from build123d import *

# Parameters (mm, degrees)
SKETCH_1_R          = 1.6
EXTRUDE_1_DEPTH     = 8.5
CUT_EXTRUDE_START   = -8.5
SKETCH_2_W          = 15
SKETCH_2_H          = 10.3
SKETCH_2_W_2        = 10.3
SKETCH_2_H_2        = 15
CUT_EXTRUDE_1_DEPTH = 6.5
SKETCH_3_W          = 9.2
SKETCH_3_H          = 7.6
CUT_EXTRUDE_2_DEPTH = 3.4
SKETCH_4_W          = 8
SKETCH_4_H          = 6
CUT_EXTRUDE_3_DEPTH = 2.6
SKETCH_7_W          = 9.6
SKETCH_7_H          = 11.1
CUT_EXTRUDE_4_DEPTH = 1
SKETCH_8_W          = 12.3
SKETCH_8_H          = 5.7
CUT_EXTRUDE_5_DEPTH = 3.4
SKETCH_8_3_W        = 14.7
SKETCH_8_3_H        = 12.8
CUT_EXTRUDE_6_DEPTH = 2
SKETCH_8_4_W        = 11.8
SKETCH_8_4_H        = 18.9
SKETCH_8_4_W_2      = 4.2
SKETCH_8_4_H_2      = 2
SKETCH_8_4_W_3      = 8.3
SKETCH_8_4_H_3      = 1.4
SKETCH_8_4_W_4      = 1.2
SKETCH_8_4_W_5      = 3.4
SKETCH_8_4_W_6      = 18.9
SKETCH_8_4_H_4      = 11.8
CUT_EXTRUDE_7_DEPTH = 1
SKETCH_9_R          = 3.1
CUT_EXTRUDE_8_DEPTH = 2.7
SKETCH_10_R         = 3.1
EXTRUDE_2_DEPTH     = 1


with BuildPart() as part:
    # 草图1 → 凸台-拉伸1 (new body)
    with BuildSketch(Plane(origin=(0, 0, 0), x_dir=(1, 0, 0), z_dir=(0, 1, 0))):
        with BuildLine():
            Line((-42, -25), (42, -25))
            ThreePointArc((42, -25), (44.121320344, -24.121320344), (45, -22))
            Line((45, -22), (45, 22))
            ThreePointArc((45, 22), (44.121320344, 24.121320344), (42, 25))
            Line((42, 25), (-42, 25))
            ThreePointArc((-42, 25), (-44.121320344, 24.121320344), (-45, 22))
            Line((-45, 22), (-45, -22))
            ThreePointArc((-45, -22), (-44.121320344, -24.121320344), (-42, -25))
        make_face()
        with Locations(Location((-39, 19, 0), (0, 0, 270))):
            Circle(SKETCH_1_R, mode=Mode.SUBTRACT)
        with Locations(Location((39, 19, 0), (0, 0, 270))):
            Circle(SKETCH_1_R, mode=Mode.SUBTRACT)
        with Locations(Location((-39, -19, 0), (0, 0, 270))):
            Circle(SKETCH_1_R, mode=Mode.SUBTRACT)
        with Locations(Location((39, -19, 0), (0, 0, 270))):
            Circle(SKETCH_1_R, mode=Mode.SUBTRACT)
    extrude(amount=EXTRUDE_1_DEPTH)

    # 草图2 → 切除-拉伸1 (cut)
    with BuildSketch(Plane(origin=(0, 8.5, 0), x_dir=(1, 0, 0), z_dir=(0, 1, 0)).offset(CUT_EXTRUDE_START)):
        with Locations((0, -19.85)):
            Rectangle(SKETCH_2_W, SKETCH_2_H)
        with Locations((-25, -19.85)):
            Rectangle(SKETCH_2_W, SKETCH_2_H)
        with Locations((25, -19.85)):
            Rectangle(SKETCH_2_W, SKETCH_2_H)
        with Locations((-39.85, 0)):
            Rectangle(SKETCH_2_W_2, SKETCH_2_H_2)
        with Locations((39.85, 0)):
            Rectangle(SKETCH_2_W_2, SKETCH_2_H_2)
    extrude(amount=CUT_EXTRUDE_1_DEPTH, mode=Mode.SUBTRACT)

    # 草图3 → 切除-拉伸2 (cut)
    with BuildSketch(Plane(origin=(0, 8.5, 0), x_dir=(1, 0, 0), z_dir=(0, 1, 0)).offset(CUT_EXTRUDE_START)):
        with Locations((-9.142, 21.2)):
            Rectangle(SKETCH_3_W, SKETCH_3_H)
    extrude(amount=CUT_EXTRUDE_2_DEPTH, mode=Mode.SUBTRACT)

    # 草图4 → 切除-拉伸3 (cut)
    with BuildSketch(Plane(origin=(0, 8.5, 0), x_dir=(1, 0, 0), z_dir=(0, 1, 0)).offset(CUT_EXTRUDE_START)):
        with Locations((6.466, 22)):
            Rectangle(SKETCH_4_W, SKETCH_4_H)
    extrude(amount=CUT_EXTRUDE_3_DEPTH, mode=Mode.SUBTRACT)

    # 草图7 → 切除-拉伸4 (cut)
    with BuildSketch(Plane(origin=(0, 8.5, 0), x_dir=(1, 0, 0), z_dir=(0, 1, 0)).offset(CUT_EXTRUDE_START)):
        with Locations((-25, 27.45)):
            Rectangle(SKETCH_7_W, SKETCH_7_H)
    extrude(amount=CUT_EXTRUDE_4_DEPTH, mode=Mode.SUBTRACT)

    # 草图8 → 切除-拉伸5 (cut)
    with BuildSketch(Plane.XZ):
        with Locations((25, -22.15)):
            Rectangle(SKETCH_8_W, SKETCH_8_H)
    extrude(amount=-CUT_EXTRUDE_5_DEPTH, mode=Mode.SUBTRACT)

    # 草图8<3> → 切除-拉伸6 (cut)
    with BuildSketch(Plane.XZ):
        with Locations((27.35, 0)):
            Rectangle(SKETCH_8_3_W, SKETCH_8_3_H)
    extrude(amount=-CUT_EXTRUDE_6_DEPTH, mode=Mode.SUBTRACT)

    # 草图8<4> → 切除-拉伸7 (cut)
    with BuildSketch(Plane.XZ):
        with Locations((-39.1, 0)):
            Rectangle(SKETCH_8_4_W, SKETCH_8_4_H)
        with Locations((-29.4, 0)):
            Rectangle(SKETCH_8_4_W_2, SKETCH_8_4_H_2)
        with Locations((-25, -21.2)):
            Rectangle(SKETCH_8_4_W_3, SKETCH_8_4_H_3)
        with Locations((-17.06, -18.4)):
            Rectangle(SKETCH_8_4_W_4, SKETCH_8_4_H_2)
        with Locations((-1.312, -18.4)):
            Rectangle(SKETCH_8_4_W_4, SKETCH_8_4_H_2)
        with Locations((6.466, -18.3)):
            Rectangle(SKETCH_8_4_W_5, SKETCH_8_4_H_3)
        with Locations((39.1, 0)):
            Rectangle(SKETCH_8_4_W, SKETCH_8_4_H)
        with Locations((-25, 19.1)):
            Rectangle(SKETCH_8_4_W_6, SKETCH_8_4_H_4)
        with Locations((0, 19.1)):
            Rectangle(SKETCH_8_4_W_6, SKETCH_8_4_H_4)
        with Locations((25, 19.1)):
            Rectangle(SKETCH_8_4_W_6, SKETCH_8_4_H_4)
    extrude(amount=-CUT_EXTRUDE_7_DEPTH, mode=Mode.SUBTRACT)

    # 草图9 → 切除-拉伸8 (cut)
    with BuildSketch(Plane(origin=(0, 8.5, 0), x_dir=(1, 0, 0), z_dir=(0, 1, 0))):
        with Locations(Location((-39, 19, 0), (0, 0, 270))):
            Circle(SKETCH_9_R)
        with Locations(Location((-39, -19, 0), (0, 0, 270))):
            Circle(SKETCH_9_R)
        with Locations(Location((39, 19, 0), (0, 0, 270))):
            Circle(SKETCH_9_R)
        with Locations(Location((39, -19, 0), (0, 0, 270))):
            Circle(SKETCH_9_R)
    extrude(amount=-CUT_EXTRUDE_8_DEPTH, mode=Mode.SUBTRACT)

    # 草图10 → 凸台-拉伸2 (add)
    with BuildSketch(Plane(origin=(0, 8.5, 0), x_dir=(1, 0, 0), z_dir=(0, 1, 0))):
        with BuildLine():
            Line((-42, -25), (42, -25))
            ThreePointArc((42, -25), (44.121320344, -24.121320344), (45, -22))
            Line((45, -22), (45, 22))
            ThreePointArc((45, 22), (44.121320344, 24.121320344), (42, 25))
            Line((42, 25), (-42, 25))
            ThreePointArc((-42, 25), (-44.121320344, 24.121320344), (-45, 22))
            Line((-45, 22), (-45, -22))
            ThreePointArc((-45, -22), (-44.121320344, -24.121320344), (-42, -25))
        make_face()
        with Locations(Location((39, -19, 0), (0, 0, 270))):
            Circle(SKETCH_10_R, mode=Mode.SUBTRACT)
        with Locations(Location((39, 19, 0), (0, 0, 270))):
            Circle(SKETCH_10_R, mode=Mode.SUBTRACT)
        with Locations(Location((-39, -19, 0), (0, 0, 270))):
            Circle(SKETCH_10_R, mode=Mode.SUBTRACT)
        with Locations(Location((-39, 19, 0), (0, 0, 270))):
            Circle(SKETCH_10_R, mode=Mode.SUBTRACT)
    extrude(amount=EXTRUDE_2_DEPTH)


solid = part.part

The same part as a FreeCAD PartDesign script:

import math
import FreeCAD as App
import Part
import Sketcher
from FreeCAD import Vector
Q = App.Units.Quantity

doc = App.newDocument("Part")
body = doc.addObject("PartDesign::Body", "Body")

# Sketch on XZ plane
sketch1 = doc.addObject("Sketcher::SketchObject", "Sketch")
body.addObject(sketch1)
sketch1.AttachmentSupport = (doc.XZ_Plane, [""])
sketch1.MapMode = "FlatFace"
sketch1.addGeometry([
    Part.LineSegment(Vector(-42, 25, 0), Vector(42, 25, 0)),  # 0
    Part.ArcOfCircle(Part.Circle(Vector(42, 22, 0), Vector(0, 0, 1), 3), math.radians(0), math.radians(90)),  # 1
    Part.LineSegment(Vector(45, 22, 0), Vector(45, -22, 0)),  # 2
    Part.ArcOfCircle(Part.Circle(Vector(42, -22, 0), Vector(0, 0, 1), 3), math.radians(-90), math.radians(0)),  # 3
    Part.LineSegment(Vector(42, -25, 0), Vector(-42, -25, 0)),  # 4
    Part.ArcOfCircle(Part.Circle(Vector(-42, -22, 0), Vector(0, 0, 1), 3), math.radians(180), math.radians(270)),  # 5
    Part.LineSegment(Vector(-45, -22, 0), Vector(-45, 22, 0)),  # 6
    Part.ArcOfCircle(Part.Circle(Vector(-42, 22, 0), Vector(0, 0, 1), 3), math.radians(90), math.radians(180)),  # 7
    Part.Circle(Vector(-39, 19, 0), Vector(0, 0, 1), 1.6),  # 8
    Part.Circle(Vector(39, 19, 0), Vector(0, 0, 1), 1.6),  # 9
    Part.Circle(Vector(-39, -19, 0), Vector(0, 0, 1), 1.6),  # 10
    Part.Circle(Vector(39, -19, 0), Vector(0, 0, 1), 1.6),  # 11
], False)
sketch1.addConstraint([
    Sketcher.Constraint("Tangent", 0, 2, 1, 2),
    Sketcher.Constraint("Tangent", 1, 1, 2, 1),
    Sketcher.Constraint("Tangent", 2, 2, 3, 2),
    Sketcher.Constraint("Tangent", 3, 1, 4, 1),
    Sketcher.Constraint("Tangent", 4, 2, 5, 2),
    Sketcher.Constraint("Tangent", 5, 1, 6, 1),
    Sketcher.Constraint("Tangent", 6, 2, 7, 2),
    Sketcher.Constraint("Tangent", 7, 1, 0, 1),
    Sketcher.Constraint("Horizontal", 0),
    Sketcher.Constraint("Vertical", 2),
    Sketcher.Constraint("Horizontal", 4),
    Sketcher.Constraint("Vertical", 6),
    Sketcher.Constraint("Equal", 1, 3),
    Sketcher.Constraint("Equal", 3, 5),
    Sketcher.Constraint("Equal", 5, 7),
    Sketcher.Constraint("Equal", 8, 9),
    Sketcher.Constraint("Equal", 9, 10),
    Sketcher.Constraint("Equal", 10, 11),
    Sketcher.Constraint("Symmetric", 1, 3, 5, 3, -1, 1),
    Sketcher.Constraint("Symmetric", 9, 3, 10, 3, -1, 1),
    Sketcher.Constraint("Symmetric", 8, 3, 11, 3, -1, 1),
    Sketcher.Constraint("Symmetric", 8, 3, 9, 3, -2),
    Sketcher.Constraint("Radius", 1, Q("3 mm")),
    Sketcher.Constraint("Diameter", 8, Q("3.2 mm")),
    Sketcher.Constraint("DistanceX", 0, 1, 0, 2, Q("84 mm")),
    Sketcher.Constraint("DistanceY", 2, 2, 2, 1, Q("44 mm")),
    Sketcher.Constraint("DistanceX", 8, 3, -1, 1, Q("39 mm")),
    Sketcher.Constraint("DistanceY", -1, 1, 8, 3, Q("19 mm")),
])
pad1 = doc.addObject("PartDesign::Pad", "Pad")
body.addObject(pad1)
pad1.Profile = sketch1
pad1.Length = 8.5
pad1.Reversed = True

# Sketch on XZ plane
sketch2 = doc.addObject("Sketcher::SketchObject", "Sketch001")
body.addObject(sketch2)
sketch2.AttachmentSupport = (doc.XZ_Plane, [""])
sketch2.MapMode = "FlatFace"
sketch2.addGeometry([
    Part.LineSegment(Vector(-8, 15, 0), Vector(-8, 25, 0)),  # 0
    Part.LineSegment(Vector(-8, 25, 0), Vector(8, 25, 0)),  # 1
    Part.LineSegment(Vector(8, 25, 0), Vector(8, 15, 0)),  # 2
    Part.LineSegment(Vector(8, 15, 0), Vector(-8, 15, 0)),  # 3
    Part.LineSegment(Vector(-32, 15, 0), Vector(-32, 25, 0)),  # 4
    Part.LineSegment(Vector(-32, 25, 0), Vector(-18, 25, 0)),  # 5
    Part.LineSegment(Vector(-18, 25, 0), Vector(-18, 15, 0)),  # 6
    Part.LineSegment(Vector(-18, 15, 0), Vector(-32, 15, 0)),  # 7
    Part.LineSegment(Vector(18, 15, 0), Vector(18, 25, 0)),  # 8
    Part.LineSegment(Vector(18, 25, 0), Vector(32, 25, 0)),  # 9
    Part.LineSegment(Vector(32, 25, 0), Vector(32, 15, 0)),  # 10
    Part.LineSegment(Vector(32, 15, 0), Vector(18, 15, 0)),  # 11
    Part.LineSegment(Vector(-45, -8, 0), Vector(-45, 8, 0)),  # 12
    Part.LineSegment(Vector(-45, 8, 0), Vector(-35, 8, 0)),  # 13
    Part.LineSegment(Vector(-35, 8, 0), Vector(-35, -8, 0)),  # 14
    Part.LineSegment(Vector(-35, -8, 0), Vector(-45, -8, 0)),  # 15
    Part.LineSegment(Vector(35, -8, 0), Vector(35, 8, 0)),  # 16
    Part.LineSegment(Vector(35, 8, 0), Vector(45, 8, 0)),  # 17
    Part.LineSegment(Vector(45, 8, 0), Vector(45, -8, 0)),  # 18
    Part.LineSegment(Vector(45, -8, 0), Vector(35, -8, 0)),  # 19
], False)
sketch2.addConstraint([
    Sketcher.Constraint("Coincident", 0, 2, 1, 1),
    Sketcher.Constraint("Coincident", 1, 2, 2, 1),
    Sketcher.Constraint("Coincident", 2, 2, 3, 1),
    Sketcher.Constraint("Coincident", 3, 2, 0, 1),
    Sketcher.Constraint("Coincident", 4, 2, 5, 1),
    Sketcher.Constraint("Coincident", 5, 2, 6, 1),
    Sketcher.Constraint("Coincident", 6, 2, 7, 1),
    Sketcher.Constraint("Coincident", 7, 2, 4, 1),
    Sketcher.Constraint("Coincident", 8, 2, 9, 1),
    Sketcher.Constraint("Coincident", 9, 2, 10, 1),
    Sketcher.Constraint("Coincident", 10, 2, 11, 1),
    Sketcher.Constraint("Coincident", 11, 2, 8, 1),
    Sketcher.Constraint("Coincident", 12, 2, 13, 1),
    Sketcher.Constraint("Coincident", 13, 2, 14, 1),
    Sketcher.Constraint("Coincident", 14, 2, 15, 1),
    Sketcher.Constraint("Coincident", 15, 2, 12, 1),
    Sketcher.Constraint("Coincident", 16, 2, 17, 1),
    Sketcher.Constraint("Coincident", 17, 2, 18, 1),
    Sketcher.Constraint("Coincident", 18, 2, 19, 1),
    Sketcher.Constraint("Coincident", 19, 2, 16, 1),
    Sketcher.Constraint("Vertical", 0),
    Sketcher.Constraint("Horizontal", 1),
    Sketcher.Constraint("Vertical", 2),
    Sketcher.Constraint("Horizontal", 3),
    Sketcher.Constraint("Vertical", 4),
    Sketcher.Constraint("Horizontal", 5),
    Sketcher.Constraint("Vertical", 6),
    Sketcher.Constraint("Horizontal", 7),
    Sketcher.Constraint("Vertical", 8),
    Sketcher.Constraint("Horizontal", 9),
    Sketcher.Constraint("Vertical", 10),
    Sketcher.Constraint("Horizontal", 11),
    Sketcher.Constraint("Vertical", 12),
    Sketcher.Constraint("Horizontal", 13),
    Sketcher.Constraint("Vertical", 14),
    Sketcher.Constraint("Horizontal", 15),
    Sketcher.Constraint("Vertical", 16),
    Sketcher.Constraint("Horizontal", 17),
    Sketcher.Constraint("Vertical", 18),
    Sketcher.Constraint("Horizontal", 19),
    Sketcher.Constraint("Symmetric", 14, 2, 16, 2, -1, 1),
    Sketcher.Constraint("Symmetric", 12, 2, 18, 2, -1, 1),
    Sketcher.Constraint("Symmetric", 5, 2, 8, 2, -2),
    Sketcher.Constraint("Symmetric", 7, 2, 10, 2, -2),
    Sketcher.Constraint("Horizontal", 1, 2, 4, 2),
    Sketcher.Constraint("Horizontal", 3, 2, 6, 2),
    Sketcher.Constraint("Horizontal", 13, 2, 16, 2),
    Sketcher.Constraint("Equal", 3, 5),
    Sketcher.Constraint("Equal", 19, 0),
    Sketcher.Constraint("Equal", 11, 12),
    Sketcher.Constraint("DistanceX", 1, 1, 1, 2, Q("15 mm")),
    Sketcher.Constraint("DistanceX", 13, 1, 13, 2, Q("10.3 mm")),
    Sketcher.Constraint("DistanceY", -1, 1, 0, 2, Q("25 mm")),
    Sketcher.Constraint("DistanceX", 12, 2, -1, 1, Q("45 mm")),
    Sketcher.Constraint("DistanceX", 4, 2, 0, 2, Q("25 mm")),
    Sketcher.Constraint("DistanceX", 1, 2, 8, 2, Q("10 mm")),
])
pocket1 = doc.addObject("PartDesign::Pocket", "Pocket")
body.addObject(pocket1)
pocket1.Profile = sketch2
pocket1.Length = 6.5

# Sketch on XZ plane
sketch3 = doc.addObject("Sketcher::SketchObject", "Sketch002")
body.addObject(sketch3)
sketch3.AttachmentSupport = (doc.XZ_Plane, [""])
sketch3.MapMode = "FlatFace"
sketch3.addGeometry([
    Part.LineSegment(Vector(-14, -25, 0), Vector(-14, -17, 0)),
    Part.LineSegment(Vector(-14, -17, 0), Vector(-5, -17, 0)),
    Part.LineSegment(Vector(-5, -17, 0), Vector(-5, -25, 0)),
    Part.LineSegment(Vector(-5, -25, 0), Vector(-14, -25, 0)),
], False)
sketch3.addConstraint([
    Sketcher.Constraint("Coincident", 0, 2, 1, 1),
    Sketcher.Constraint("Coincident", 1, 2, 2, 1),
    Sketcher.Constraint("Coincident", 2, 2, 3, 1),
    Sketcher.Constraint("Coincident", 3, 2, 0, 1),
    Sketcher.Constraint("Vertical", 0),
    Sketcher.Constraint("Horizontal", 1),
    Sketcher.Constraint("Vertical", 2),
    Sketcher.Constraint("Horizontal", 3),
    Sketcher.Constraint("DistanceX", 1, 1, 1, 2, Q("9.2 mm")),
    Sketcher.Constraint("DistanceY", 0, 1, 0, 2, Q("7.6 mm")),
    Sketcher.Constraint("DistanceY", 2, 2, -1, 1, Q("25 mm")),
    Sketcher.Constraint("DistanceX", 0, 2, -1, 1, Q("13.742 mm")),
])
pocket2 = doc.addObject("PartDesign::Pocket", "Pocket001")
body.addObject(pocket2)
pocket2.Profile = sketch3
pocket2.Length = 3.4

# Sketch on XZ plane
sketch4 = doc.addObject("Sketcher::SketchObject", "Sketch003")
body.addObject(sketch4)
sketch4.AttachmentSupport = (doc.XZ_Plane, [""])
sketch4.MapMode = "FlatFace"
sketch4.addGeometry([
    Part.LineSegment(Vector(2, -25, 0), Vector(2, -19, 0)),
    Part.LineSegment(Vector(2, -19, 0), Vector(10, -19, 0)),
    Part.LineSegment(Vector(10, -19, 0), Vector(10, -25, 0)),
    Part.LineSegment(Vector(10, -25, 0), Vector(2, -25, 0)),
], False)
sketch4.addConstraint([
    Sketcher.Constraint("Coincident", 0, 2, 1, 1),
    Sketcher.Constraint("Coincident", 1, 2, 2, 1),
    Sketcher.Constraint("Coincident", 2, 2, 3, 1),
    Sketcher.Constraint("Coincident", 3, 2, 0, 1),
    Sketcher.Constraint("Vertical", 0),
    Sketcher.Constraint("Horizontal", 1),
    Sketcher.Constraint("Vertical", 2),
    Sketcher.Constraint("Horizontal", 3),
    Sketcher.Constraint("DistanceX", 1, 1, 1, 2, Q("8 mm")),
    Sketcher.Constraint("DistanceY", 0, 1, 0, 2, Q("6 mm")),
    Sketcher.Constraint("DistanceY", 0, 2, -1, 1, Q("19 mm")),
    Sketcher.Constraint("DistanceX", -1, 1, 0, 2, Q("2.466 mm")),
])
pocket3 = doc.addObject("PartDesign::Pocket", "Pocket002")
body.addObject(pocket3)
pocket3.Profile = sketch4
pocket3.Length = 2.6

# Sketch on XZ plane
sketch5 = doc.addObject("Sketcher::SketchObject", "Sketch004")
body.addObject(sketch5)
sketch5.AttachmentSupport = (doc.XZ_Plane, [""])
sketch5.MapMode = "FlatFace"
sketch5.addGeometry([
    Part.LineSegment(Vector(-30, -33, 0), Vector(-30, -22, 0)),
    Part.LineSegment(Vector(-30, -22, 0), Vector(-20, -22, 0)),
    Part.LineSegment(Vector(-20, -22, 0), Vector(-20, -33, 0)),
    Part.LineSegment(Vector(-20, -33, 0), Vector(-30, -33, 0)),
], False)
sketch5.addConstraint([
    Sketcher.Constraint("Coincident", 0, 2, 1, 1),
    Sketcher.Constraint("Coincident", 1, 2, 2, 1),
    Sketcher.Constraint("Coincident", 2, 2, 3, 1),
    Sketcher.Constraint("Coincident", 3, 2, 0, 1),
    Sketcher.Constraint("Vertical", 0),
    Sketcher.Constraint("Horizontal", 1),
    Sketcher.Constraint("Vertical", 2),
    Sketcher.Constraint("Horizontal", 3),
    Sketcher.Constraint("DistanceX", 1, 1, 1, 2, Q("9.6 mm")),
    Sketcher.Constraint("DistanceY", 0, 1, 0, 2, Q("11.1 mm")),
    Sketcher.Constraint("DistanceY", 2, 2, -1, 1, Q("33 mm")),
    Sketcher.Constraint("DistanceX", 0, 2, -1, 1, Q("29.8 mm")),
])
pocket4 = doc.addObject("PartDesign::Pocket", "Pocket003")
body.addObject(pocket4)
pocket4.Profile = sketch5
pocket4.Length = 1

# Sketch on XZ plane
sketch6 = doc.addObject("Sketcher::SketchObject", "Sketch005")
body.addObject(sketch6)
sketch6.AttachmentSupport = (doc.XZ_Plane, [""])
sketch6.MapMode = "FlatFace"
sketch6.addGeometry([
    Part.LineSegment(Vector(19, -19, 0), Vector(19, -25, 0)),
    Part.LineSegment(Vector(19, -25, 0), Vector(31, -25, 0)),
    Part.LineSegment(Vector(31, -25, 0), Vector(31, -19, 0)),
    Part.LineSegment(Vector(31, -19, 0), Vector(19, -19, 0)),
], False)
sketch6.addConstraint([
    Sketcher.Constraint("Coincident", 0, 2, 1, 1),
    Sketcher.Constraint("Coincident", 1, 2, 2, 1),
    Sketcher.Constraint("Coincident", 2, 2, 3, 1),
    Sketcher.Constraint("Coincident", 3, 2, 0, 1),
    Sketcher.Constraint("Vertical", 0),
    Sketcher.Constraint("Horizontal", 1),
    Sketcher.Constraint("Vertical", 2),
    Sketcher.Constraint("Horizontal", 3),
    Sketcher.Constraint("DistanceX", 1, 1, 1, 2, Q("12.3 mm")),
    Sketcher.Constraint("DistanceY", 0, 2, 0, 1, Q("5.7 mm")),
    Sketcher.Constraint("DistanceY", 0, 2, -1, 1, Q("25 mm")),
    Sketcher.Constraint("DistanceX", -1, 1, 0, 2, Q("18.85 mm")),
])
pocket5 = doc.addObject("PartDesign::Pocket", "Pocket004")
body.addObject(pocket5)
pocket5.Profile = sketch6
pocket5.Length = 3.4

# Sketch on XZ plane
sketch7 = doc.addObject("Sketcher::SketchObject", "Sketch006")
body.addObject(sketch7)
sketch7.AttachmentSupport = (doc.XZ_Plane, [""])
sketch7.MapMode = "FlatFace"
sketch7.addGeometry([
    Part.LineSegment(Vector(20, 6, 0), Vector(20, -6, 0)),
    Part.LineSegment(Vector(20, -6, 0), Vector(35, -6, 0)),
    Part.LineSegment(Vector(35, -6, 0), Vector(35, 6, 0)),
    Part.LineSegment(Vector(35, 6, 0), Vector(20, 6, 0)),
], False)
sketch7.addConstraint([
    Sketcher.Constraint("Coincident", 0, 2, 1, 1),
    Sketcher.Constraint("Coincident", 1, 2, 2, 1),
    Sketcher.Constraint("Coincident", 2, 2, 3, 1),
    Sketcher.Constraint("Coincident", 3, 2, 0, 1),
    Sketcher.Constraint("Vertical", 0),
    Sketcher.Constraint("Horizontal", 1),
    Sketcher.Constraint("Vertical", 2),
    Sketcher.Constraint("Horizontal", 3),
    Sketcher.Constraint("DistanceX", 1, 1, 1, 2, Q("14.7 mm")),
    Sketcher.Constraint("DistanceY", 0, 2, 0, 1, Q("12.8 mm")),
    Sketcher.Constraint("DistanceX", -1, 1, 0, 2, Q("20 mm")),
    Sketcher.Constraint("DistanceY", 0, 2, -1, 1, Q("6.4 mm")),
])
pocket6 = doc.addObject("PartDesign::Pocket", "Pocket005")
body.addObject(pocket6)
pocket6.Profile = sketch7
pocket6.Length = 2

# Sketch on XZ plane
sketch8 = doc.addObject("Sketcher::SketchObject", "Sketch007")
body.addObject(sketch8)
sketch8.AttachmentSupport = (doc.XZ_Plane, [""])
sketch8.MapMode = "FlatFace"
sketch8.addGeometry([
    Part.LineSegment(Vector(-45, 9.4, 0), Vector(-45, -9.4, 0)),  # 0
    Part.LineSegment(Vector(-45, -9.4, 0), Vector(-33.2, -9.4, 0)),  # 1
    Part.LineSegment(Vector(-33.2, -9.4, 0), Vector(-33.2, 9.4, 0)),  # 2
    Part.LineSegment(Vector(-33.2, 9.4, 0), Vector(-45, 9.4, 0)),  # 3
    Part.LineSegment(Vector(-31.5, 1, 0), Vector(-31.5, -1, 0)),  # 4
    Part.LineSegment(Vector(-31.5, -1, 0), Vector(-27.3, -1, 0)),  # 5
    Part.LineSegment(Vector(-27.3, -1, 0), Vector(-27.3, 1, 0)),  # 6
    Part.LineSegment(Vector(-27.3, 1, 0), Vector(-31.5, 1, 0)),  # 7
    Part.LineSegment(Vector(-29.1, -20.5, 0), Vector(-29.1, -21.9, 0)),  # 8
    Part.LineSegment(Vector(-29.1, -21.9, 0), Vector(-20.9, -21.9, 0)),  # 9
    Part.LineSegment(Vector(-20.9, -21.9, 0), Vector(-20.9, -20.5, 0)),  # 10
    Part.LineSegment(Vector(-20.9, -20.5, 0), Vector(-29.1, -20.5, 0)),  # 11
    Part.LineSegment(Vector(-17.7, -17.4, 0), Vector(-17.7, -19.4, 0)),  # 12
    Part.LineSegment(Vector(-17.7, -19.4, 0), Vector(-16.5, -19.4, 0)),  # 13
    Part.LineSegment(Vector(-16.5, -19.4, 0), Vector(-16.5, -17.4, 0)),  # 14
    Part.LineSegment(Vector(-16.5, -17.4, 0), Vector(-17.7, -17.4, 0)),  # 15
    Part.LineSegment(Vector(-1.9, -17.4, 0), Vector(-1.9, -19.4, 0)),  # 16
    Part.LineSegment(Vector(-1.9, -19.4, 0), Vector(-0.7, -19.4, 0)),  # 17
    Part.LineSegment(Vector(-0.7, -19.4, 0), Vector(-0.7, -17.4, 0)),  # 18
    Part.LineSegment(Vector(-0.7, -17.4, 0), Vector(-1.9, -17.4, 0)),  # 19
    Part.LineSegment(Vector(4.8, -17.6, 0), Vector(4.8, -19, 0)),  # 20
    Part.LineSegment(Vector(4.8, -19, 0), Vector(8.2, -19, 0)),  # 21
    Part.LineSegment(Vector(8.2, -19, 0), Vector(8.2, -17.6, 0)),  # 22
    Part.LineSegment(Vector(8.2, -17.6, 0), Vector(4.8, -17.6, 0)),  # 23
    Part.LineSegment(Vector(33.2, 9.4, 0), Vector(33.2, -9.4, 0)),  # 24
    Part.LineSegment(Vector(33.2, -9.4, 0), Vector(45, -9.4, 0)),  # 25
    Part.LineSegment(Vector(45, -9.4, 0), Vector(45, 9.4, 0)),  # 26
    Part.LineSegment(Vector(45, 9.4, 0), Vector(33.2, 9.4, 0)),  # 27
    Part.LineSegment(Vector(-34.5, 25, 0), Vector(-34.5, 13.2, 0)),  # 28
    Part.LineSegment(Vector(-34.5, 13.2, 0), Vector(-15.6, 13.2, 0)),  # 29
    Part.LineSegment(Vector(-15.6, 13.2, 0), Vector(-15.6, 25, 0)),  # 30
    Part.LineSegment(Vector(-15.6, 25, 0), Vector(-34.5, 25, 0)),  # 31
    Part.LineSegment(Vector(-9.4, 25, 0), Vector(-9.4, 13.2, 0)),  # 32
    Part.LineSegment(Vector(-9.4, 13.2, 0), Vector(9.4, 13.2, 0)),  # 33
    Part.LineSegment(Vector(9.4, 13.2, 0), Vector(9.4, 25, 0)),  # 34
    Part.LineSegment(Vector(9.4, 25, 0), Vector(-9.4, 25, 0)),  # 35
    Part.LineSegment(Vector(15.6, 25, 0), Vector(15.6, 13.2, 0)),  # 36
    Part.LineSegment(Vector(15.6, 13.2, 0), Vector(34.5, 13.2, 0)),  # 37
    Part.LineSegment(Vector(34.5, 13.2, 0), Vector(34.5, 25, 0)),  # 38
    Part.LineSegment(Vector(34.5, 25, 0), Vector(15.6, 25, 0)),  # 39
], False)
sketch8.addConstraint([
    Sketcher.Constraint("Coincident", 0, 2, 1, 1),
    Sketcher.Constraint("Coincident", 1, 2, 2, 1),
    Sketcher.Constraint("Coincident", 2, 2, 3, 1),
    Sketcher.Constraint("Coincident", 3, 2, 0, 1),
    Sketcher.Constraint("Coincident", 4, 2, 5, 1),
    Sketcher.Constraint("Coincident", 5, 2, 6, 1),
    Sketcher.Constraint("Coincident", 6, 2, 7, 1),
    Sketcher.Constraint("Coincident", 7, 2, 4, 1),
    Sketcher.Constraint("Coincident", 8, 2, 9, 1),
    Sketcher.Constraint("Coincident", 9, 2, 10, 1),
    Sketcher.Constraint("Coincident", 10, 2, 11, 1),
    Sketcher.Constraint("Coincident", 11, 2, 8, 1),
    Sketcher.Constraint("Coincident", 12, 2, 13, 1),
    Sketcher.Constraint("Coincident", 13, 2, 14, 1),
    Sketcher.Constraint("Coincident", 14, 2, 15, 1),
    Sketcher.Constraint("Coincident", 15, 2, 12, 1),
    Sketcher.Constraint("Coincident", 16, 2, 17, 1),
    Sketcher.Constraint("Coincident", 17, 2, 18, 1),
    Sketcher.Constraint("Coincident", 18, 2, 19, 1),
    Sketcher.Constraint("Coincident", 19, 2, 16, 1),
    Sketcher.Constraint("Coincident", 20, 2, 21, 1),
    Sketcher.Constraint("Coincident", 21, 2, 22, 1),
    Sketcher.Constraint("Coincident", 22, 2, 23, 1),
    Sketcher.Constraint("Coincident", 23, 2, 20, 1),
    Sketcher.Constraint("Coincident", 24, 2, 25, 1),
    Sketcher.Constraint("Coincident", 25, 2, 26, 1),
    Sketcher.Constraint("Coincident", 26, 2, 27, 1),
    Sketcher.Constraint("Coincident", 27, 2, 24, 1),
    Sketcher.Constraint("Coincident", 28, 2, 29, 1),
    Sketcher.Constraint("Coincident", 29, 2, 30, 1),
    Sketcher.Constraint("Coincident", 30, 2, 31, 1),
    Sketcher.Constraint("Coincident", 31, 2, 28, 1),
    Sketcher.Constraint("Coincident", 32, 2, 33, 1),
    Sketcher.Constraint("Coincident", 33, 2, 34, 1),
    Sketcher.Constraint("Coincident", 34, 2, 35, 1),
    Sketcher.Constraint("Coincident", 35, 2, 32, 1),
    Sketcher.Constraint("Coincident", 36, 2, 37, 1),
    Sketcher.Constraint("Coincident", 37, 2, 38, 1),
    Sketcher.Constraint("Coincident", 38, 2, 39, 1),
    Sketcher.Constraint("Coincident", 39, 2, 36, 1),
    Sketcher.Constraint("Vertical", 0),
    Sketcher.Constraint("Horizontal", 1),
    Sketcher.Constraint("Vertical", 2),
    Sketcher.Constraint("Horizontal", 3),
    Sketcher.Constraint("Vertical", 4),
    Sketcher.Constraint("Horizontal", 5),
    Sketcher.Constraint("Vertical", 6),
    Sketcher.Constraint("Horizontal", 7),
    Sketcher.Constraint("Vertical", 8),
    Sketcher.Constraint("Horizontal", 9),
    Sketcher.Constraint("Vertical", 10),
    Sketcher.Constraint("Horizontal", 11),
    Sketcher.Constraint("Vertical", 12),
    Sketcher.Constraint("Horizontal", 13),
    Sketcher.Constraint("Vertical", 14),
    Sketcher.Constraint("Horizontal", 15),
    Sketcher.Constraint("Vertical", 16),
    Sketcher.Constraint("Horizontal", 17),
    Sketcher.Constraint("Vertical", 18),
    Sketcher.Constraint("Horizontal", 19),
    Sketcher.Constraint("Vertical", 20),
    Sketcher.Constraint("Horizontal", 21),
    Sketcher.Constraint("Vertical", 22),
    Sketcher.Constraint("Horizontal", 23),
    Sketcher.Constraint("Vertical", 24),
    Sketcher.Constraint("Horizontal", 25),
    Sketcher.Constraint("Vertical", 26),
    Sketcher.Constraint("Horizontal", 27),
    Sketcher.Constraint("Vertical", 28),
    Sketcher.Constraint("Horizontal", 29),
    Sketcher.Constraint("Vertical", 30),
    Sketcher.Constraint("Horizontal", 31),
    Sketcher.Constraint("Vertical", 32),
    Sketcher.Constraint("Horizontal", 33),
    Sketcher.Constraint("Vertical", 34),
    Sketcher.Constraint("Horizontal", 35),
    Sketcher.Constraint("Vertical", 36),
    Sketcher.Constraint("Horizontal", 37),
    Sketcher.Constraint("Vertical", 38),
    Sketcher.Constraint("Horizontal", 39),
    Sketcher.Constraint("Symmetric", 2, 2, 24, 2, -1, 1),
    Sketcher.Constraint("Symmetric", 0, 2, 26, 2, -1, 1),
    Sketcher.Constraint("Symmetric", 29, 2, 36, 2, -2),
    Sketcher.Constraint("Symmetric", 31, 2, 38, 2, -2),
    Sketcher.Constraint("Horizontal", 13, 2, 16, 2),
    Sketcher.Constraint("Horizontal", 15, 2, 18, 2),
    Sketcher.Constraint("Horizontal", 1, 2, 24, 2),
    Sketcher.Constraint("Horizontal", 29, 2, 32, 2),
    Sketcher.Constraint("Horizontal", 31, 2, 34, 2),
    Sketcher.Constraint("Equal", 15, 17),
    Sketcher.Constraint("Equal", 31, 33),
    Sketcher.Constraint("Equal", 39, 0),
    Sketcher.Constraint("Equal", 6, 12),
    Sketcher.Constraint("Equal", 10, 20),
    Sketcher.Constraint("Equal", 27, 28),
    Sketcher.Constraint("DistanceY", 4, 2, 4, 1, Q("2 mm")),
    Sketcher.Constraint("DistanceX", 1, 1, 1, 2, Q("11.8 mm")),
    Sketcher.Constraint("DistanceX", 5, 1, 5, 2, Q("4.2 mm")),
    Sketcher.Constraint("DistanceX", 9, 1, 9, 2, Q("8.3 mm")),
    Sketcher.Constraint("DistanceX", 13, 1, 13, 2, Q("1.2 mm")),
    Sketcher.Constraint("DistanceX", 21, 1, 21, 2, Q("3.4 mm")),
    Sketcher.Constraint("DistanceX", 29, 1, 29, 2, Q("18.9 mm")),
    Sketcher.Constraint("DistanceY", 8, 2, 8, 1, Q("1.4 mm")),
    Sketcher.Constraint("DistanceX", 0, 2, -1, 1, Q("45 mm")),
    Sketcher.Constraint("DistanceY", 4, 2, -1, 1, Q("1 mm")),
    Sketcher.Constraint("DistanceY", 20, 2, -1, 1, Q("19 mm")),
    Sketcher.Constraint("DistanceY", -1, 1, 30, 2, Q("25 mm")),
    Sketcher.Constraint("DistanceX", 29, 2, 33, 2, Q("25 mm")),
    Sketcher.Constraint("DistanceX", 32, 2, 36, 2, Q("25 mm")),
    Sketcher.Constraint("DistanceX", 4, 2, -1, 1, Q("31.5 mm")),
    Sketcher.Constraint("DistanceY", 8, 2, -1, 1, Q("21.9 mm")),
    Sketcher.Constraint("DistanceY", 12, 2, -1, 1, Q("19.4 mm")),
    Sketcher.Constraint("DistanceX", 8, 2, -1, 1, Q("29.15 mm")),
    Sketcher.Constraint("DistanceX", 12, 2, -1, 1, Q("17.66 mm")),
    Sketcher.Constraint("DistanceX", 16, 2, -1, 1, Q("1.912 mm")),
    Sketcher.Constraint("DistanceX", -1, 1, 20, 2, Q("4.766 mm")),
])
pocket7 = doc.addObject("PartDesign::Pocket", "Pocket006")
body.addObject(pocket7)
pocket7.Profile = sketch8
pocket7.Length = 1

# Sketch on XZ plane
sketch9 = doc.addObject("Sketcher::SketchObject", "Sketch008")
body.addObject(sketch9)
sketch9.AttachmentSupport = (doc.XZ_Plane, [""])
sketch9.MapMode = "FlatFace"
sketch9.AttachmentOffset = App.Placement(Vector(0, 0, -8.5), App.Rotation())
sketch9.addGeometry([
    Part.Circle(Vector(-39, -19, 0), Vector(0, 0, 1), 3.1),
    Part.Circle(Vector(-39, 19, 0), Vector(0, 0, 1), 3.1),
    Part.Circle(Vector(39, -19, 0), Vector(0, 0, 1), 3.1),
    Part.Circle(Vector(39, 19, 0), Vector(0, 0, 1), 3.1),
], False)
sketch9.addConstraint([
    Sketcher.Constraint("Equal", 0, 1),
    Sketcher.Constraint("Equal", 1, 2),
    Sketcher.Constraint("Equal", 2, 3),
    Sketcher.Constraint("Symmetric", 1, 3, 2, 3, -1, 1),
    Sketcher.Constraint("Symmetric", 0, 3, 3, 3, -1, 1),
    Sketcher.Constraint("Symmetric", 0, 3, 2, 3, -2),
    Sketcher.Constraint("Diameter", 0, Q("6.2 mm")),
    Sketcher.Constraint("DistanceX", 0, 3, -1, 1, Q("39 mm")),
    Sketcher.Constraint("DistanceY", 0, 3, -1, 1, Q("19 mm")),
])
pocket8 = doc.addObject("PartDesign::Pocket", "Pocket007")
body.addObject(pocket8)
pocket8.Profile = sketch9
pocket8.Length = 2.7
pocket8.Reversed = True

# Sketch on XZ plane
sketch10 = doc.addObject("Sketcher::SketchObject", "Sketch009")
body.addObject(sketch10)
sketch10.AttachmentSupport = (doc.XZ_Plane, [""])
sketch10.MapMode = "FlatFace"
sketch10.AttachmentOffset = App.Placement(Vector(0, 0, -8.5), App.Rotation())
sketch10.addGeometry([
    Part.LineSegment(Vector(-42, 25, 0), Vector(42, 25, 0)),  # 0
    Part.ArcOfCircle(Part.Circle(Vector(42, 22, 0), Vector(0, 0, 1), 3), math.radians(0), math.radians(90)),  # 1
    Part.LineSegment(Vector(45, 22, 0), Vector(45, -22, 0)),  # 2
    Part.ArcOfCircle(Part.Circle(Vector(42, -22, 0), Vector(0, 0, 1), 3), math.radians(-90), math.radians(0)),  # 3
    Part.LineSegment(Vector(42, -25, 0), Vector(-42, -25, 0)),  # 4
    Part.ArcOfCircle(Part.Circle(Vector(-42, -22, 0), Vector(0, 0, 1), 3), math.radians(180), math.radians(270)),  # 5
    Part.LineSegment(Vector(-45, -22, 0), Vector(-45, 22, 0)),  # 6
    Part.ArcOfCircle(Part.Circle(Vector(-42, 22, 0), Vector(0, 0, 1), 3), math.radians(90), math.radians(180)),  # 7
    Part.Circle(Vector(-39, 19, 0), Vector(0, 0, 1), 3.1),  # 8
    Part.Circle(Vector(39, 19, 0), Vector(0, 0, 1), 3.1),  # 9
    Part.Circle(Vector(-39, -19, 0), Vector(0, 0, 1), 3.1),  # 10
    Part.Circle(Vector(39, -19, 0), Vector(0, 0, 1), 3.1),  # 11
], False)
sketch10.addConstraint([
    Sketcher.Constraint("Tangent", 0, 2, 1, 2),
    Sketcher.Constraint("Tangent", 1, 1, 2, 1),
    Sketcher.Constraint("Tangent", 2, 2, 3, 2),
    Sketcher.Constraint("Tangent", 3, 1, 4, 1),
    Sketcher.Constraint("Tangent", 4, 2, 5, 2),
    Sketcher.Constraint("Tangent", 5, 1, 6, 1),
    Sketcher.Constraint("Tangent", 6, 2, 7, 2),
    Sketcher.Constraint("Tangent", 7, 1, 0, 1),
    Sketcher.Constraint("Horizontal", 0),
    Sketcher.Constraint("Vertical", 2),
    Sketcher.Constraint("Horizontal", 4),
    Sketcher.Constraint("Vertical", 6),
    Sketcher.Constraint("Equal", 1, 3),
    Sketcher.Constraint("Equal", 3, 5),
    Sketcher.Constraint("Equal", 5, 7),
    Sketcher.Constraint("Equal", 8, 9),
    Sketcher.Constraint("Equal", 9, 10),
    Sketcher.Constraint("Equal", 10, 11),
    Sketcher.Constraint("Symmetric", 1, 3, 5, 3, -1, 1),
    Sketcher.Constraint("Symmetric", 9, 3, 10, 3, -1, 1),
    Sketcher.Constraint("Symmetric", 8, 3, 11, 3, -1, 1),
    Sketcher.Constraint("Symmetric", 8, 3, 9, 3, -2),
    Sketcher.Constraint("Radius", 1, Q("3 mm")),
    Sketcher.Constraint("Diameter", 8, Q("6.2 mm")),
    Sketcher.Constraint("DistanceX", 0, 1, 0, 2, Q("84 mm")),
    Sketcher.Constraint("DistanceY", 2, 2, 2, 1, Q("44 mm")),
    Sketcher.Constraint("DistanceX", 8, 3, -1, 1, Q("39 mm")),
    Sketcher.Constraint("DistanceY", -1, 1, 8, 3, Q("19 mm")),
])
pad2 = doc.addObject("PartDesign::Pad", "Pad001")
body.addObject(pad2)
pad2.Profile = sketch10
pad2.Length = 1
pad2.Reversed = True

doc.recompute()
